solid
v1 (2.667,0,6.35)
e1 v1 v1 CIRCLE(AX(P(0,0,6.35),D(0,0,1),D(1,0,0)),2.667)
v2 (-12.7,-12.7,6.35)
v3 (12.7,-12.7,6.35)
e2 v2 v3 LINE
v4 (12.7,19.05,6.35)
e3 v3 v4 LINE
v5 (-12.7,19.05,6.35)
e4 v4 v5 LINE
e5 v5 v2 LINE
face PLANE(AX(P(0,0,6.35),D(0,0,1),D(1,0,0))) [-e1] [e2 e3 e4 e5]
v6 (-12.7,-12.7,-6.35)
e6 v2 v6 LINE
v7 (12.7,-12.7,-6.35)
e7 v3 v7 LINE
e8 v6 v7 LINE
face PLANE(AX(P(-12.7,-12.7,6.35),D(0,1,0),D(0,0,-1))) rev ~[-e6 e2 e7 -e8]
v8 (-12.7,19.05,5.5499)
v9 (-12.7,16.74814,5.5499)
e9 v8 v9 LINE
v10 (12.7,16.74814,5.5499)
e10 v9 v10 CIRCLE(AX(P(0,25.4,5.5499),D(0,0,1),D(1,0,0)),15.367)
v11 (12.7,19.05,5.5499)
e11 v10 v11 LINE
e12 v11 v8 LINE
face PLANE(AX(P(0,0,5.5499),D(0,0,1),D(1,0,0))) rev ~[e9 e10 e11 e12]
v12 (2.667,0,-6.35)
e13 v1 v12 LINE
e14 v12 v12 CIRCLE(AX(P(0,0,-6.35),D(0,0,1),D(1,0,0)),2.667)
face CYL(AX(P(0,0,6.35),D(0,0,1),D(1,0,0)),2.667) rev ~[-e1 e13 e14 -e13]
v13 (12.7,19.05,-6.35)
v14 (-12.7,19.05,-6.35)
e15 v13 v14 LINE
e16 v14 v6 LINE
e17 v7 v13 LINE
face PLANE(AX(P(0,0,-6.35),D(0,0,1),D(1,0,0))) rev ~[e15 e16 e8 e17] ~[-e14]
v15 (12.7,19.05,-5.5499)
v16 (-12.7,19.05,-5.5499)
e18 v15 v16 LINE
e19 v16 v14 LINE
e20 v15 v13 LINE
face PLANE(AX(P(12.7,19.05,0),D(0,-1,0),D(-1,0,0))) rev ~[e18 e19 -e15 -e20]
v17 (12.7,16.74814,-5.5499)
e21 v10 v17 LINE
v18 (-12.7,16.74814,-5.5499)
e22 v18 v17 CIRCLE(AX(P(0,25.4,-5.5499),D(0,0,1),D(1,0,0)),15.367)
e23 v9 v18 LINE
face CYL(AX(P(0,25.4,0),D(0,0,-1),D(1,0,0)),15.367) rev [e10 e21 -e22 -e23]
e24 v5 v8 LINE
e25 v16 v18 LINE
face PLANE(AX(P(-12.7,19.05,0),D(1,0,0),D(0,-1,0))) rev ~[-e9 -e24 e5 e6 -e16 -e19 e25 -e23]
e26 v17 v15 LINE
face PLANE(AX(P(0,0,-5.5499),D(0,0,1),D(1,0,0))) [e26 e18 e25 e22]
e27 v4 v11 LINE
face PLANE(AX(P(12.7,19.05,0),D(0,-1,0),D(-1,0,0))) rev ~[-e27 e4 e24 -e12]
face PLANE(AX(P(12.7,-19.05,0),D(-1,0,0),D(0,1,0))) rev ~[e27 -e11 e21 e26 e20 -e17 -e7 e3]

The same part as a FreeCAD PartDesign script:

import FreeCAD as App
import Part
import Sketcher
from FreeCAD import Vector
Q = App.Units.Quantity

doc = App.newDocument("Part")
body = doc.addObject("PartDesign::Body", "Body")

# Sketch on XY plane
sketch1 = body.newObject("Sketcher::SketchObject", "Sketch")
sketch1.AttachmentSupport = (doc.getObject("XY_Plane"), [""])
sketch1.MapMode = "FlatFace"
sketch1.addGeometry([
    Part.LineSegment(Vector(-13, 19, 0), Vector(-13, -19, 0)),
    Part.LineSegment(Vector(-13, -19, 0), Vector(13, -19, 0)),
    Part.LineSegment(Vector(13, -19, 0), Vector(13, 19, 0)),
    Part.LineSegment(Vector(13, 19, 0), Vector(-13, 19, 0)),
], False)
sketch1.addConstraint([
    Sketcher.Constraint("Coincident", 0, 2, 1, 1),
    Sketcher.Constraint("Coincident", 1, 2, 2, 1),
    Sketcher.Constraint("Coincident", 2, 2, 3, 1),
    Sketcher.Constraint("Coincident", 3, 2, 0, 1),
    Sketcher.Constraint("Vertical", 0),
    Sketcher.Constraint("Horizontal", 1),
    Sketcher.Constraint("Vertical", 2),
    Sketcher.Constraint("Horizontal", 3),
    Sketcher.Constraint("Symmetric", 0, 2, 2, 2, -1, 1),
    Sketcher.Constraint("DistanceX", 1, 1, 1, 2, Q("1 in")),
    Sketcher.Constraint("DistanceY", 0, 2, 0, 1, Q("1.5 in")),
])
pad1 = body.newObject("PartDesign::Pad", "Pad")
pad1.Profile = sketch1
pad1.Length = Q("0.5 in")
pad1.Midplane = True

# Sketch on XY plane
sketch2 = body.newObject("Sketcher::SketchObject", "Sketch001")
sketch2.AttachmentSupport = (doc.getObject("XY_Plane"), [""])
sketch2.MapMode = "FlatFace"
sketch2.AttachmentOffset = App.Placement(Vector(0, 0, 0.25 * 25.4), App.Rotation())
sketch2.addGeometry(Part.Circle(Vector(0, 0, 0), Vector(0, 0, 1), 2.7), False)
sketch2.addConstraint([
    Sketcher.Constraint("Coincident", 0, 3, -1, 1),
    Sketcher.Constraint("Diameter", 0, Q("0.21 in")),
])
pocket1 = body.newObject("PartDesign::Pocket", "Pocket")
pocket1.Profile = sketch2
pocket1.Type = "ThroughAll"

# Sketch on YZ plane
sketch3 = body.newObject("Sketcher::SketchObject", "Sketch002")
sketch3.AttachmentSupport = (doc.getObject("YZ_Plane"), [""])
sketch3.MapMode = "FlatFace"
sketch3.AttachmentOffset = App.Placement(Vector(0, 0, -0.5 * 25.4), App.Rotation())
sketch3.addGeometry([
    Part.LineSegment(Vector(-13, 6, 0), Vector(-13, -6, 0)),
    Part.LineSegment(Vector(-13, -6, 0), Vector(-19, -6, 0)),
    Part.LineSegment(Vector(-19, -6, 0), Vector(-19, 6, 0)),
    Part.LineSegment(Vector(-19, 6, 0), Vector(-13, 6, 0)),
], False)
sketch3.addConstraint([
    Sketcher.Constraint("Coincident", 0, 2, 1, 1),
    Sketcher.Constraint("Coincident", 1, 2, 2, 1),
    Sketcher.Constraint("Coincident", 2, 2, 3, 1),
    Sketcher.Constraint("Coincident", 3, 2, 0, 1),
    Sketcher.Constraint("Vertical", 0),
    Sketcher.Constraint("Horizontal", 1),
    Sketcher.Constraint("Vertical", 2),
    Sketcher.Constraint("Horizontal", 3),
    Sketcher.Constraint("DistanceX", 1, 2, 1, 1, Q("0.25 in")),
    Sketcher.Constraint("DistanceY", 0, 2, -1, 1, Q("0.25 in")),
    Sketcher.Constraint("DistanceY", -1, 1, 2, 2, Q("0.25 in")),
    Sketcher.Constraint("DistanceX", 0, 2, -1, 1, Q("0.5 in")),
])
pocket2 = body.newObject("PartDesign::Pocket", "Pocket001")
pocket2.Profile = sketch3
pocket2.Type = "ThroughAll"
pocket2.Reversed = True

# Sketch on XY plane
sketch4 = body.newObject("Sketcher::SketchObject", "Sketch003")
sketch4.AttachmentSupport = (doc.getObject("XY_Plane"), [""])
sketch4.MapMode = "FlatFace"
sketch4.addGeometry(Part.Circle(Vector(0, 25, 0), Vector(0, 0, 1), 15), False)
sketch4.addConstraint([
    Sketcher.Constraint("PointOnObject", 0, 3, -2),
    Sketcher.Constraint("Diameter", 0, Q("1.21 in")),
    Sketcher.Constraint("DistanceY", -1, 1, 0, 3, Q("1 in")),
])
pocket3 = body.newObject("PartDesign::Pocket", "Pocket002")
pocket3.Profile = sketch4
pocket3.Length = Q("0.437 in")
pocket3.Midplane = True

doc.recompute()
